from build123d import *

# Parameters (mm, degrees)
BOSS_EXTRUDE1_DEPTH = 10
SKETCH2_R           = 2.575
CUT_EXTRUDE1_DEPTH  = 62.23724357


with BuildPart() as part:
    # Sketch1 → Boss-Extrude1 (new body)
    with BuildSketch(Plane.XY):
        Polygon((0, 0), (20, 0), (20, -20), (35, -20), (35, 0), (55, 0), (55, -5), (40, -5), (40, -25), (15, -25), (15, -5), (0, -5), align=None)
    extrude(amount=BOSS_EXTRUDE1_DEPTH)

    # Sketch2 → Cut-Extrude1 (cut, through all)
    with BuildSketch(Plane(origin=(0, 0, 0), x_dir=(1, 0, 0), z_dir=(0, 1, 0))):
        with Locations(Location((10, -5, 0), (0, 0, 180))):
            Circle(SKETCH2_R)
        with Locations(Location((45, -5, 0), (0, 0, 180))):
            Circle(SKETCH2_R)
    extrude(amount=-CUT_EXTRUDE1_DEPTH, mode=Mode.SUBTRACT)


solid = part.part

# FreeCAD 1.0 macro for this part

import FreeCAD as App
import Part
import Sketcher
Q = App.Units.Quantity

doc = App.newDocument("Part")
body = doc.addObject("PartDesign::Body", "Body")

# Sketch on XY plane
sketch1 = doc.addObject("Sketcher::SketchObject", "Sketch")
body.addObject(sketch1)
sketch1.AttachmentSupport = (doc.XY_Plane, [""])
sketch1.MapMode = "FlatFace"
sketch1.addGeometry([
    Part.LineSegment(App.Vector(20, 0, 0), App.Vector(0, 0, 0)),  # 0
    Part.LineSegment(App.Vector(0, 0, 0), App.Vector(0, -5, 0)),  # 1
    Part.LineSegment(App.Vector(0, -5, 0), App.Vector(15, -5, 0)),  # 2
    Part.LineSegment(App.Vector(15, -5, 0), App.Vector(15, -25, 0)),  # 3
    Part.LineSegment(App.Vector(15, -25, 0), App.Vector(40, -25, 0)),  # 4
    Part.LineSegment(App.Vector(40, -25, 0), App.Vector(40, -5, 0)),  # 5
    Part.LineSegment(App.Vector(40, -5, 0), App.Vector(55, -5, 0)),  # 6
    Part.LineSegment(App.Vector(55, -5, 0), App.Vector(55, 0, 0)),  # 7
    Part.LineSegment(App.Vector(55, 0, 0), App.Vector(35, 0, 0)),  # 8
    Part.LineSegment(App.Vector(35, 0, 0), App.Vector(35, -20, 0)),  # 9
    Part.LineSegment(App.Vector(35, -20, 0), App.Vector(20, -20, 0)),  # 10
    Part.LineSegment(App.Vector(20, -20, 0), App.Vector(20, 0, 0)),  # 11
], False)
sketch1.addConstraint([
    Sketcher.Constraint("Coincident", 0, 2, 1, 1),
    Sketcher.Constraint("Coincident", 1, 2, 2, 1),
    Sketcher.Constraint("Coincident", 2, 2, 3, 1),
    Sketcher.Constraint("Coincident", 3, 2, 4, 1),
    Sketcher.Constraint("Coincident", 4, 2, 5, 1),
    Sketcher.Constraint("Coincident", 5, 2, 6, 1),
    Sketcher.Constraint("Coincident", 6, 2, 7, 1),
    Sketcher.Constraint("Coincident", 7, 2, 8, 1),
    Sketcher.Constraint("Coincident", 8, 2, 9, 1),
    Sketcher.Constraint("Coincident", 9, 2, 10, 1),
    Sketcher.Constraint("Coincident", 10, 2, 11, 1),
    Sketcher.Constraint("Coincident", 11, 2, 0, 1),
    Sketcher.Constraint("Horizontal", 0),
    Sketcher.Constraint("Vertical", 1),
    Sketcher.Constraint("Horizontal", 2),
    Sketcher.Constraint("Vertical", 3),
    Sketcher.Constraint("Horizontal", 4),
    Sketcher.Constraint("Vertical", 5),
    Sketcher.Constraint("Horizontal", 6),
    Sketcher.Constraint("Vertical", 7),
    Sketcher.Constraint("Horizontal", 8),
    Sketcher.Constraint("Vertical", 9),
    Sketcher.Constraint("Horizontal", 10),
    Sketcher.Constraint("Vertical", 11),
    Sketcher.Constraint("Coincident", 0, 2, -1, 1),
    Sketcher.Constraint("PointOnObject", 7, 2, -1),
    Sketcher.Constraint("Horizontal", 2, 2, 5, 2),
    Sketcher.Constraint("Equal", 2, 6),
    Sketcher.Constraint("Equal", 0, 8),
    Sketcher.Constraint("Equal", 6, 10),
    Sketcher.Constraint("Equal", 8, 3),
    Sketcher.Constraint("Equal", 5, 9),
    Sketcher.Constraint("DistanceX", 0, 2, 0, 1, Q("20 mm")),
    Sketcher.Constraint("DistanceX", 2, 1, 2, 2, Q("15 mm")),
    Sketcher.Constraint("DistanceY", 1, 2, 1, 1, Q("5 mm")),
])
pad1 = doc.addObject("PartDesign::Pad", "Pad")
body.addObject(pad1)
pad1.Profile = sketch1
pad1.Length = 10

# Sketch on XZ plane
sketch2 = doc.addObject("Sketcher::SketchObject", "Sketch001")
body.addObject(sketch2)
sketch2.AttachmentSupport = (doc.XZ_Plane, [""])
sketch2.MapMode = "FlatFace"
sketch2.addGeometry([
    Part.Circle(App.Vector(10, 5, 0), App.Vector(0, 0, 1), 2.6),
    Part.Circle(App.Vector(45, 5, 0), App.Vector(0, 0, 1), 2.6),
], False)
sketch2.addConstraint([
    Sketcher.Constraint("Equal", 0, 1),
    Sketcher.Constraint("Horizontal", 0, 3, 1, 3),
    Sketcher.Constraint("Diameter", 0, Q("5.15 mm")),
    Sketcher.Constraint("DistanceX", -1, 1, 0, 3, Q("10 mm")),
    Sketcher.Constraint("DistanceY", -1, 1, 0, 3, Q("5 mm")),
    Sketcher.Constraint("DistanceX", -1, 1, 1, 3, Q("45 mm")),
])
pocket1 = doc.addObject("PartDesign::Pocket", "Pocket")
body.addObject(pocket1)
pocket1.Profile = sketch2
pocket1.Type = "ThroughAll"
pocket1.Reversed = True

doc.recompute()
